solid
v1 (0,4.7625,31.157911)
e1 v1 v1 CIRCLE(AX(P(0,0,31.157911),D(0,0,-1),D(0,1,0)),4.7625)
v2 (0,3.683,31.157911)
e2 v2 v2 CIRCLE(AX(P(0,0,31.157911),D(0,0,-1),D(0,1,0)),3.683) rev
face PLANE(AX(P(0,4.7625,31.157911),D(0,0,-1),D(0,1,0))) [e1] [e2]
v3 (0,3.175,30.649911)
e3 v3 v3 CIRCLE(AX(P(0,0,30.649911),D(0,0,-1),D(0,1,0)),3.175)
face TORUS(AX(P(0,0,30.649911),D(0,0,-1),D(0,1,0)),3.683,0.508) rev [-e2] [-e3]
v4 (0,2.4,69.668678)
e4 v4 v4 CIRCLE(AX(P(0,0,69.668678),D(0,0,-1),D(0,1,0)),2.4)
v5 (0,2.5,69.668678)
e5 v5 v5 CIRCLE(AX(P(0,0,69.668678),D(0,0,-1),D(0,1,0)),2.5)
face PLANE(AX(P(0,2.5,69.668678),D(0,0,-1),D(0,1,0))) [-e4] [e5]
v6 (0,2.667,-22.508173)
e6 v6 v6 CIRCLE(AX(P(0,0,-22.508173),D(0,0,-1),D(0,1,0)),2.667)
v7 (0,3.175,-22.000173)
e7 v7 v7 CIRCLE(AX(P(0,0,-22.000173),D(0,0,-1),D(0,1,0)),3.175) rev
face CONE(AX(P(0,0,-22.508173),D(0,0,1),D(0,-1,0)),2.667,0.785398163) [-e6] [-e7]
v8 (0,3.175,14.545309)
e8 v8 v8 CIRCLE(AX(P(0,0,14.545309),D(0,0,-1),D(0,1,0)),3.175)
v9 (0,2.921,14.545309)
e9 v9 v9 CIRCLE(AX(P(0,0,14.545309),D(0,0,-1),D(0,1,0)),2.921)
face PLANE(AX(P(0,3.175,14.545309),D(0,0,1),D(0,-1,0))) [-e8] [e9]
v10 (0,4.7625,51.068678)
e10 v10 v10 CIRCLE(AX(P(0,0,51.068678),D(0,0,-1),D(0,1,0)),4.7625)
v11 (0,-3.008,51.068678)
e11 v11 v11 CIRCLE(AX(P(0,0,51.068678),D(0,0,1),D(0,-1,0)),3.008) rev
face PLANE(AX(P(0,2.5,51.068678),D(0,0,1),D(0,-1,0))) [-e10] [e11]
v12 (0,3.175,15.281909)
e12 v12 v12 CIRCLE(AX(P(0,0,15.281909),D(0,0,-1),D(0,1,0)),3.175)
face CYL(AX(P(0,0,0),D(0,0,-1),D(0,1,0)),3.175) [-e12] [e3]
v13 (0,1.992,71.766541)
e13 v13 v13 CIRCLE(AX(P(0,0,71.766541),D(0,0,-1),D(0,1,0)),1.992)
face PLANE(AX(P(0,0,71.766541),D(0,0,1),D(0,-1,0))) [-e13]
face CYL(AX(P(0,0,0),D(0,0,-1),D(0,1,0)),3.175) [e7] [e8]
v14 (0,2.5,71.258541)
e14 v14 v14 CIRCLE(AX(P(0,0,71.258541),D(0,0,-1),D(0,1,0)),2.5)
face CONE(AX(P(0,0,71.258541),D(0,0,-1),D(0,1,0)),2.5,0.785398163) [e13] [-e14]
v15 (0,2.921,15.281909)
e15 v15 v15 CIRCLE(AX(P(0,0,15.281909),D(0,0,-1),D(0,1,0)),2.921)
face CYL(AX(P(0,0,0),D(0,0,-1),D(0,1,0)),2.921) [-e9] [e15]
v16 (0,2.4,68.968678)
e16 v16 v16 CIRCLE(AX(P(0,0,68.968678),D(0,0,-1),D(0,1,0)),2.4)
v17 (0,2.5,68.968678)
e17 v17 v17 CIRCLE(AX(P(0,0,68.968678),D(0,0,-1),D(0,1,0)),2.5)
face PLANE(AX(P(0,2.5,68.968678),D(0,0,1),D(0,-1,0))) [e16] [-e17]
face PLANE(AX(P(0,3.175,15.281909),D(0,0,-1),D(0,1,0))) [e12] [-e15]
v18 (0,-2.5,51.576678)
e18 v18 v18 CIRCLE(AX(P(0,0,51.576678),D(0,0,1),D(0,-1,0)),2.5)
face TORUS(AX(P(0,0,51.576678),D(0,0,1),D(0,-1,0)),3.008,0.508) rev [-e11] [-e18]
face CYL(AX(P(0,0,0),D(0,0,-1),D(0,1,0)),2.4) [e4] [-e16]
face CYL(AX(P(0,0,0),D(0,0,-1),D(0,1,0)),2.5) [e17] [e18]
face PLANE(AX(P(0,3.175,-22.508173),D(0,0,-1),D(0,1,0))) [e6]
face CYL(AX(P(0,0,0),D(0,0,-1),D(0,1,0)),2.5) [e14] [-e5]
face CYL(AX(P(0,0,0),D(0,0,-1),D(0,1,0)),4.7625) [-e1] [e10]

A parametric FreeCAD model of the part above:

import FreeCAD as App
import Part
import Sketcher
from FreeCAD import Vector
Q = App.Units.Quantity


def edges_at(feature, points):
    """Names of the edges that pass closest to the given points."""
    edges = feature.Shape.Edges
    near = lambda p: min(range(len(edges)), key=lambda i: edges[i].distToShape(Part.Vertex(*p))[0])
    return sorted({f"Edge{near(p) + 1}" for p in points})


def add_polygon(sketch, points):
    """Adds a closed chain of lines whose ends are joined by coincident constraints."""
    first, n = sketch.GeometryCount, len(points)
    for a, b in zip(points, points[1:] + points[:1]):
        sketch.addGeometry(Part.LineSegment(App.Vector(*a, 0), App.Vector(*b, 0)), False)
    for i in range(n):
        sketch.addConstraint(Sketcher.Constraint("Coincident", first + i, 2, first + (i + 1) % n, 1))

doc = App.newDocument("Part")
params = doc.addObject("Spreadsheet::Sheet", "Params")
for row, (alias, value) in enumerate([
    ("sketch1_width", "0.01 in"),
    ("sketch1_width2", "0.125 in"),
    ("sketch1_width3", "0.0625 in"),
    ("sketch1_height", "0.029 in"),
    ("revolution_angle", "360 deg"),
    ("chamfer_size", "0.02 in"),
    ("fillet_radius", "0.02 in"),
], start=1):
    params.set(f"A{row}", alias)
    params.set(f"B{row}", "=" + value)
    params.setAlias(f"B{row}", alias)

body = doc.addObject("PartDesign::Body", "Body")

# Sketch on YZ plane
sketch1 = body.newObject("Sketcher::SketchObject", "Sketch")
sketch1.AttachmentSupport = (doc.getObject("YZ_Plane"), [""])
sketch1.MapMode = "FlatFace"
add_polygon(sketch1, [(1.992, 71.766541), (0, 71.766541), (0, -22.508173), (3.175, -22.508173), (3.175, 14.545309), (2.921, 14.545309), (2.921, 15.281909), (3.175, 15.281909), (3.175, 31.157911), (4.7625, 31.157911), (4.7625, 51.068678), (2.5, 51.068678), (2.5, 68.968678), (2.4, 68.968678), (2.4, 69.668678), (2.5, 69.668678), (2.5, 71.258541)])  # lines 0-16
sketch1.addConstraint([
    Sketcher.Constraint("Horizontal", 0),
    Sketcher.Constraint("Vertical", 1),
    Sketcher.Constraint("Horizontal", 2),
    Sketcher.Constraint("Vertical", 3),
    Sketcher.Constraint("Horizontal", 4),
    Sketcher.Constraint("Vertical", 5),
    Sketcher.Constraint("Horizontal", 6),
    Sketcher.Constraint("Vertical", 7),
    Sketcher.Constraint("Horizontal", 8),
    Sketcher.Constraint("Vertical", 9),
    Sketcher.Constraint("Horizontal", 10),
    Sketcher.Constraint("Vertical", 11),
    Sketcher.Constraint("Horizontal", 12),
    Sketcher.Constraint("Vertical", 13),
    Sketcher.Constraint("Horizontal", 14),
    Sketcher.Constraint("Vertical", 15),
    Sketcher.Constraint("PointOnObject", 0, 2, -2),
    Sketcher.Constraint("Vertical", 3, 2, 6, 2),
    Sketcher.Constraint("Vertical", 11, 2, 14, 2),
    Sketcher.Constraint("Angle", 16, Q("135 deg")),
    Sketcher.Constraint("DistanceX", 4, 2, 4, 1, Q("0.01 in")),
    Sketcher.Constraint("DistanceX", 2, 1, 2, 2, Q("0.125 in")),
    Sketcher.Constraint("DistanceX", 8, 1, 8, 2, Q("0.0625 in")),
    Sketcher.Constraint("DistanceY", 5, 1, 5, 2, Q("0.029 in")),
    Sketcher.Constraint("DistanceY", 15, 2, 0, 2, Q("0.02 in")),
    Sketcher.Constraint("DistanceX", 0, 2, 0, 1, Q("1.992 mm")),
    Sketcher.Constraint("DistanceX", 12, 2, 12, 1, Q("0.1 mm")),
    Sketcher.Constraint("DistanceY", 11, 1, 11, 2, Q("17.9 mm")),
    Sketcher.Constraint("DistanceY", 13, 1, 13, 2, Q("0.7 mm")),
    Sketcher.Constraint("DistanceY", 3, 1, 3, 2, Q("37.053482 mm")),
    Sketcher.Constraint("DistanceY", 1, 2, 1, 1, Q("94.274714 mm")),
    Sketcher.Constraint("DistanceY", 7, 1, 7, 2, Q("15.876003 mm")),
    Sketcher.Constraint("DistanceY", 9, 1, 9, 2, Q("19.910767 mm")),
    Sketcher.Constraint("DistanceY", -1, 1, 0, 2, Q("71.766541 mm")),
])
sketch1.setExpression("Constraints[37]", "Params.sketch1_width")
sketch1.setExpression("Constraints[38]", "Params.sketch1_width2")
sketch1.setExpression("Constraints[39]", "Params.sketch1_width3")
sketch1.setExpression("Constraints[40]", "Params.sketch1_height")
revolution = body.newObject("PartDesign::Revolution", "Revolution")
revolution.Profile = sketch1
revolution.ReferenceAxis = (sketch1, ["V_Axis"])
revolution.setExpression("Angle", "Params.revolution_angle")
doc.recompute()

chamfer = body.newObject("PartDesign::Chamfer", "Chamfer")
chamfer.Base = (revolution, edges_at(revolution, [(0, -3.175, -22.508)]))
chamfer.setExpression("Size", "Params.chamfer_size")
doc.recompute()

fillet = body.newObject("PartDesign::Fillet", "Fillet")
fillet.Base = (chamfer, edges_at(chamfer, [(0, -3.175, 31.158), (0, -2.5, 51.069)]))
fillet.setExpression("Radius", "Params.fillet_radius")

doc.recompute()
